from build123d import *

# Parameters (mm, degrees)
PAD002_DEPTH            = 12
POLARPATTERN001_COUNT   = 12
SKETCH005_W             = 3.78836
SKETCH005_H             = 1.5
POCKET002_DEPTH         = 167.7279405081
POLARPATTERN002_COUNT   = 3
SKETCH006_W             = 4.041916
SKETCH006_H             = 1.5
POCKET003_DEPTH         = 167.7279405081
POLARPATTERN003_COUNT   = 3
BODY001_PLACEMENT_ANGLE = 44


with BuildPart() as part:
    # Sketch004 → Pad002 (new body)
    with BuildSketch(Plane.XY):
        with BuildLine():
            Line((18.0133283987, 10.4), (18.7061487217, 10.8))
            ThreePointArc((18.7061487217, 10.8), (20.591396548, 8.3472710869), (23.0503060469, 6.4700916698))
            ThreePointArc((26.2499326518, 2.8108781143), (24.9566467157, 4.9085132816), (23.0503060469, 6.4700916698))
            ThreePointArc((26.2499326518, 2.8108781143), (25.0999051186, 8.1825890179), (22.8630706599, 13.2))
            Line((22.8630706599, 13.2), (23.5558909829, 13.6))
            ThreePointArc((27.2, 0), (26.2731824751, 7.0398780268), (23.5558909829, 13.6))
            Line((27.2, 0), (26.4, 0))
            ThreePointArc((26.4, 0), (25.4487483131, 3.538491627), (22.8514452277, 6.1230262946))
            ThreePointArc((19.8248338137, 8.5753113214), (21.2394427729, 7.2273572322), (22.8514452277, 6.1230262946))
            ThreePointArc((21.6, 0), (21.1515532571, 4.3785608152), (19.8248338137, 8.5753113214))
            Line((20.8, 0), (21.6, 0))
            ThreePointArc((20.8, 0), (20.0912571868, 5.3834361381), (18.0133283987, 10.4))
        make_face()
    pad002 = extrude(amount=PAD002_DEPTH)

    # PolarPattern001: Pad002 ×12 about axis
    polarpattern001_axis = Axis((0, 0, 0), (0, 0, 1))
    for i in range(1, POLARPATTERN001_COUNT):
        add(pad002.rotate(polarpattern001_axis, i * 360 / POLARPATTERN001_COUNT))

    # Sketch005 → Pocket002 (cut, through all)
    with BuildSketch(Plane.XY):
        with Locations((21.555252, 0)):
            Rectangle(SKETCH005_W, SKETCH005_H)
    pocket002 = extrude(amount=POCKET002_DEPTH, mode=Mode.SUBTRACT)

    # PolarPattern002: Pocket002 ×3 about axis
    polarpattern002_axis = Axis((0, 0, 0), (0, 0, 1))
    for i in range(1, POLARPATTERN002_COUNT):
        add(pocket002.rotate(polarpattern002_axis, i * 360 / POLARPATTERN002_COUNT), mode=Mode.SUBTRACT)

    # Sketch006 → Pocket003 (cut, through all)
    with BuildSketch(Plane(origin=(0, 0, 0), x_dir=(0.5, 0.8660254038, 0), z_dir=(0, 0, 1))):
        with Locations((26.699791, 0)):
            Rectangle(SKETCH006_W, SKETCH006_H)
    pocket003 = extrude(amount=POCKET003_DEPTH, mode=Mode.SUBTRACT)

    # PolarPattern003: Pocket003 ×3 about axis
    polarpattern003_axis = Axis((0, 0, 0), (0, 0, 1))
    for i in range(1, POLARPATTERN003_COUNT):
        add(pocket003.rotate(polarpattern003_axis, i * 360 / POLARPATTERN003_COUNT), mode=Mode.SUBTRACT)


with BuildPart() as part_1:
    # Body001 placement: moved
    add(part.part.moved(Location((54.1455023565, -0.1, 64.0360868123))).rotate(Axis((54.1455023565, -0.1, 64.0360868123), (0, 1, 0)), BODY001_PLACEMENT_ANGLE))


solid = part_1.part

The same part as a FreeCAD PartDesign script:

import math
import FreeCAD as App
import Part
import Sketcher

V = App.Vector
Q = App.Units.Quantity

doc = App.newDocument("Part")
body = doc.addObject("PartDesign::Body", "Body")

# Sketch on XY plane
sketch1 = body.newObject("Sketcher::SketchObject", "Sketch")
sketch1.AttachmentSupport = (doc.getObject("XY_Plane"), [""])
sketch1.MapMode = "FlatFace"
sketch1.addGeometry(Part.LineSegment(V(18.7, 10.8, 0), V(18, 10.4, 0)), False)
sketch1.addGeometry(Part.ArcOfCircle(Part.Circle(V(0, 0, 0), V(0, 0, 1), 20.8), math.radians(0), math.radians(30)), False)
sketch1.addGeometry(Part.LineSegment(V(20.8, 0, 0), V(21.6, 0, 0)), False)
sketch1.addGeometry(Part.ArcOfCircle(Part.Circle(V(0, 0, 0), V(0, 0, 1), 21.6), math.radians(0), math.radians(23)), False)
sketch1.addGeometry(Part.ArcOfCircle(Part.Circle(V(28.9, 16.7, 0), V(0, 0, 1), 12.2), math.radians(-138.22), math.radians(-119.81)), False)
sketch1.addGeometry(Part.ArcOfCircle(Part.Circle(V(19.3, 0, 0), V(0, 0, 1), 7.1), math.radians(0), math.radians(60)), False)
sketch1.addGeometry(Part.LineSegment(V(26.4, 0, 0), V(27.2, 0, 0)), False)
sketch1.addGeometry(Part.ArcOfCircle(Part.Circle(V(0, 0, 0), V(0, 0, 1), 27.2), math.radians(0), math.radians(30)), False)
sketch1.addGeometry(Part.LineSegment(V(23.6, 13.6, 0), V(22.9, 13.2, 0)), False)
sketch1.addGeometry(Part.ArcOfCircle(Part.Circle(V(0, 0, 0), V(0, 0, 1), 26.4), math.radians(6), math.radians(30)), False)
sketch1.addGeometry(Part.ArcOfCircle(Part.Circle(V(19.3, 0, 0), V(0, 0, 1), 7.5), math.radians(22), math.radians(60)), False)
sketch1.addGeometry(Part.ArcOfCircle(Part.Circle(V(28.9, 16.7, 0), V(0, 0, 1), 11.8), math.radians(-150), math.radians(-120)), False)
sketch1.addConstraint(Sketcher.Constraint("Coincident", 0, 2, 1, 2))
sketch1.addConstraint(Sketcher.Constraint("Coincident", 1, 1, 2, 1))
sketch1.addConstraint(Sketcher.Constraint("Coincident", 2, 2, 3, 1))
sketch1.addConstraint(Sketcher.Constraint("Coincident", 3, 2, 4, 1))
sketch1.addConstraint(Sketcher.Constraint("Tangent", 4, 2, 5, 2))
sketch1.addConstraint(Sketcher.Constraint("Coincident", 5, 1, 6, 1))
sketch1.addConstraint(Sketcher.Constraint("Coincident", 6, 2, 7, 1))
sketch1.addConstraint(Sketcher.Constraint("Coincident", 7, 2, 8, 1))
sketch1.addConstraint(Sketcher.Constraint("Coincident", 8, 2, 9, 2))
sketch1.addConstraint(Sketcher.Constraint("Coincident", 9, 1, 10, 1))
sketch1.addConstraint(Sketcher.Constraint("Tangent", 10, 2, 11, 2))
sketch1.addConstraint(Sketcher.Constraint("Coincident", 11, 1, 0, 1))
sketch1.addConstraint(Sketcher.Constraint("Horizontal", 2))
sketch1.addConstraint(Sketcher.Constraint("Horizontal", 6))
sketch1.addConstraint(Sketcher.Constraint("Coincident", 1, 3, -1, 1))
sketch1.addConstraint(Sketcher.Constraint("Coincident", 3, 3, -1, 1))
sketch1.addConstraint(Sketcher.Constraint("Coincident", 7, 3, -1, 1))
sketch1.addConstraint(Sketcher.Constraint("Coincident", 9, 3, -1, 1))
sketch1.addConstraint(Sketcher.Constraint("Coincident", 10, 3, 5, 3))
sketch1.addConstraint(Sketcher.Constraint("Coincident", 11, 3, 4, 3))
sketch1.addConstraint(Sketcher.Constraint("PointOnObject", 5, 3, -1))
sketch1.addConstraint(Sketcher.Constraint("PointOnObject", 1, 1, -1))
sketch1.addConstraint(Sketcher.Constraint("PointOnObject", 5, 1, -1))
sketch1.addConstraint(Sketcher.Constraint("Parallel", 0, 8))
sketch1.addConstraint(Sketcher.Constraint("Equal", 2, 6))
sketch1.addConstraint(Sketcher.Constraint("Equal", 0, 8))
sketch1.addConstraint(Sketcher.Constraint("Radius", 1, 20.8))
sketch1.addConstraint(Sketcher.Constraint("Radius", 3, 21.6))
sketch1.addConstraint(Sketcher.Constraint("Radius", 7, 27.2))
sketch1.addConstraint(Sketcher.Constraint("Radius", 9, 26.4))
sketch1.addConstraint(Sketcher.Constraint("Angle", 0, Q("-150 deg")))
sketch1.addConstraint(Sketcher.Constraint("DistanceY", -1, 1, 0, 2, 10.4))
sketch1.addConstraint(Sketcher.Constraint("DistanceY", -1, 1, 7, 2, 13.6))
sketch1.addConstraint(Sketcher.Constraint("Radius", 4, 12.176826))
sketch1.addConstraint(Sketcher.Constraint("Radius", 5, 7.056914))
sketch1.addConstraint(Sketcher.Constraint("Radius", 10, 7.456914))
pad1 = body.newObject("PartDesign::Pad", "Pad")
pad1.Profile = sketch1
pad1.Length = 12
doc.recompute()

polarpattern = body.newObject("PartDesign::PolarPattern", "PolarPattern")
polarpattern.Originals = [pad1]
polarpattern.Axis = (doc.getObject("Z_Axis"), [""])
polarpattern.Angle = 360
polarpattern.Occurrences = 12
body.Tip = polarpattern

# Sketch on XY plane
sketch2 = body.newObject("Sketcher::SketchObject", "Sketch001")
sketch2.AttachmentSupport = (doc.getObject("XY_Plane"), [""])
sketch2.MapMode = "FlatFace"
sketch2.addGeometry(Part.LineSegment(V(19.7, 0.8, 0), V(19.7, -0.8, 0)), False)
sketch2.addGeometry(Part.LineSegment(V(19.7, -0.8, 0), V(23.4, -0.8, 0)), False)
sketch2.addGeometry(Part.LineSegment(V(23.4, -0.8, 0), V(23.4, 0.8, 0)), False)
sketch2.addGeometry(Part.LineSegment(V(23.4, 0.8, 0), V(19.7, 0.8, 0)), False)
sketch2.addConstraint(Sketcher.Constraint("Coincident", 0, 2, 1, 1))
sketch2.addConstraint(Sketcher.Constraint("Coincident", 1, 2, 2, 1))
sketch2.addConstraint(Sketcher.Constraint("Coincident", 2, 2, 3, 1))
sketch2.addConstraint(Sketcher.Constraint("Coincident", 3, 2, 0, 1))
sketch2.addConstraint(Sketcher.Constraint("Vertical", 0))
sketch2.addConstraint(Sketcher.Constraint("Horizontal", 1))
sketch2.addConstraint(Sketcher.Constraint("Vertical", 2))
sketch2.addConstraint(Sketcher.Constraint("Horizontal", 3))
sketch2.addConstraint(Sketcher.Constraint("DistanceY", 0, 2, 0, 1, 1.5))
sketch2.addConstraint(Sketcher.Constraint("DistanceY", 0, 2, -1, 1, 0.75))
sketch2.addConstraint(Sketcher.Constraint("DistanceX", 1, 1, 1, 2, 3.78836))
sketch2.addConstraint(Sketcher.Constraint("DistanceX", -1, 1, 0, 2, 19.661072))
pocket1 = body.newObject("PartDesign::Pocket", "Pocket")
pocket1.Profile = sketch2
pocket1.Type = "ThroughAll"
pocket1.Reversed = True
doc.recompute()

polarpattern2 = body.newObject("PartDesign::PolarPattern", "PolarPattern001")
polarpattern2.Originals = [pocket1]
polarpattern2.Axis = (doc.getObject("Z_Axis"), [""])
polarpattern2.Angle = 360
polarpattern2.Occurrences = 3
body.Tip = polarpattern2

# Sketch on XY plane
sketch3 = body.newObject("Sketcher::SketchObject", "Sketch002")
sketch3.AttachmentSupport = (doc.getObject("XY_Plane"), [""])
sketch3.MapMode = "FlatFace"
sketch3.addGeometry(Part.LineSegment(V(11.7, 21.7, 0), V(13, 21, 0)), False)
sketch3.addGeometry(Part.LineSegment(V(13, 21, 0), V(15, 24.5, 0)), False)
sketch3.addGeometry(Part.LineSegment(V(15, 24.5, 0), V(13.7, 25.2, 0)), False)
sketch3.addGeometry(Part.LineSegment(V(13.7, 25.2, 0), V(11.7, 21.7, 0)), False)
sketch3.addConstraint(Sketcher.Constraint("Coincident", 0, 2, 1, 1))
sketch3.addConstraint(Sketcher.Constraint("Coincident", 1, 2, 2, 1))
sketch3.addConstraint(Sketcher.Constraint("Coincident", 2, 2, 3, 1))
sketch3.addConstraint(Sketcher.Constraint("Coincident", 3, 2, 0, 1))
sketch3.addConstraint(Sketcher.Constraint("Perpendicular", 0, 1))
sketch3.addConstraint(Sketcher.Constraint("Perpendicular", 1, 2))
sketch3.addConstraint(Sketcher.Constraint("Perpendicular", 2, 3))
sketch3.addConstraint(Sketcher.Constraint("Angle", 0, Q("-30 deg")))
sketch3.addConstraint(Sketcher.Constraint("Distance", 0, 1.5))
sketch3.addConstraint(Sketcher.Constraint("DistanceY", -1, 1, 1, 2, 24.497898))
sketch3.addConstraint(Sketcher.Constraint("DistanceY", 0, 2, 1, 2, 3.500402))
sketch3.addConstraint(Sketcher.Constraint("DistanceX", -1, 1, 0, 2, 12.988936))
pocket2 = body.newObject("PartDesign::Pocket", "Pocket001")
pocket2.Profile = sketch3
pocket2.Type = "ThroughAll"
pocket2.Reversed = True
doc.recompute()

polarpattern3 = body.newObject("PartDesign::PolarPattern", "PolarPattern002")
polarpattern3.Originals = [pocket2]
polarpattern3.Axis = (doc.getObject("Z_Axis"), [""])
polarpattern3.Angle = 360
polarpattern3.Occurrences = 3
body.Tip = polarpattern3
body2 = doc.addObject("PartDesign::Body", "Body001")
doc.recompute()

body.Placement = App.Placement(V(54.145502, -0.1, 64.036087), App.Rotation(V(0, 1, 0), 44))
boolean = body2.newObject("PartDesign::Boolean", "Boolean")
boolean.Type = "Fuse"
boolean.addObjects([body])

doc.recompute()
